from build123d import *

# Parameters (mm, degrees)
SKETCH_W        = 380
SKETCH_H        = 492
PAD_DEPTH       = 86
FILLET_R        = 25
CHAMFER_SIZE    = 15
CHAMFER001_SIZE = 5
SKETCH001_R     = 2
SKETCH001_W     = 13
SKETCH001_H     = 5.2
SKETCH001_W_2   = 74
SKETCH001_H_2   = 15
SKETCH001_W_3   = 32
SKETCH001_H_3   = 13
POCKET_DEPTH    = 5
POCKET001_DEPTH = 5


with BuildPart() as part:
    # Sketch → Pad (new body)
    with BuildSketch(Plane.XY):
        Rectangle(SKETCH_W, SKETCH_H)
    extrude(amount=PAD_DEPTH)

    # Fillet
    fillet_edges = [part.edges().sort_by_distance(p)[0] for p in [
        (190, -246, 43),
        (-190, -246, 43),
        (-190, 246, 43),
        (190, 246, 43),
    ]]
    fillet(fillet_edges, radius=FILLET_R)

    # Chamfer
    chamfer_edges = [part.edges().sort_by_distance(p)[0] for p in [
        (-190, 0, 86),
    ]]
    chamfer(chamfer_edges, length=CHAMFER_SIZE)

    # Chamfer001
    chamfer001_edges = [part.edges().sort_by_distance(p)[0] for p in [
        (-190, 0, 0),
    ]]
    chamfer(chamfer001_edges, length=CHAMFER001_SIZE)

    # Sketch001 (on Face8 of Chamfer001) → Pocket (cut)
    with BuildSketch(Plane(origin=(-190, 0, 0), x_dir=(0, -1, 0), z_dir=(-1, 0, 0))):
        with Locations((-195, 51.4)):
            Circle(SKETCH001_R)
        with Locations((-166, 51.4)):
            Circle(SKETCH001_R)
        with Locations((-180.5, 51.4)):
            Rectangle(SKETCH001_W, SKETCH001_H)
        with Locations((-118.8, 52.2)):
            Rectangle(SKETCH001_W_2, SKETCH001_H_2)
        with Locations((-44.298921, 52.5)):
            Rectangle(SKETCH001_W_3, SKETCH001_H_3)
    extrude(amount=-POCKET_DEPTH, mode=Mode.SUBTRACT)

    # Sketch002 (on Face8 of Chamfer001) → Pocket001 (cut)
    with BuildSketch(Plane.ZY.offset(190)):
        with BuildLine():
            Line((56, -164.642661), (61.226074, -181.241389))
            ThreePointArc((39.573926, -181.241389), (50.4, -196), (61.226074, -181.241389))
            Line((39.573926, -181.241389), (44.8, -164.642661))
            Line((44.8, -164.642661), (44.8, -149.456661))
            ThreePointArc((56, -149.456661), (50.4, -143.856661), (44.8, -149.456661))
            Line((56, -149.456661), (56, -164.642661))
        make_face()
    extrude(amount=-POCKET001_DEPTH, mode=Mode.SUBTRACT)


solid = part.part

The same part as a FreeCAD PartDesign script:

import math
import FreeCAD as App
import Part
import Sketcher

V = App.Vector
Q = App.Units.Quantity


def edges_at(feature, points):
    """Names of the edges that pass closest to the given points."""
    edges = feature.Shape.Edges
    near = lambda p: min(range(len(edges)), key=lambda i: edges[i].distToShape(Part.Vertex(*p))[0])
    return sorted({f"Edge{near(p) + 1}" for p in points})

doc = App.newDocument("Part")
body = doc.addObject("PartDesign::Body", "Body")

# Sketch on XY plane
sketch1 = body.newObject("Sketcher::SketchObject", "Sketch")
sketch1.AttachmentSupport = (doc.getObject("XY_Plane"), [""])
sketch1.MapMode = "FlatFace"
sketch1.addGeometry([
    Part.LineSegment(V(-190, 246, 0), V(-190, -246, 0)),
    Part.LineSegment(V(-190, -246, 0), V(190, -246, 0)),
    Part.LineSegment(V(190, -246, 0), V(190, 246, 0)),
    Part.LineSegment(V(190, 246, 0), V(-190, 246, 0)),
], False)
sketch1.addConstraint([
    Sketcher.Constraint("Coincident", 0, 2, 1, 1),
    Sketcher.Constraint("Coincident", 1, 2, 2, 1),
    Sketcher.Constraint("Coincident", 2, 2, 3, 1),
    Sketcher.Constraint("Coincident", 3, 2, 0, 1),
    Sketcher.Constraint("Vertical", 0),
    Sketcher.Constraint("Horizontal", 1),
    Sketcher.Constraint("Vertical", 2),
    Sketcher.Constraint("Horizontal", 3),
    Sketcher.Constraint("Symmetric", 0, 2, 2, 2, -1, 1),
    Sketcher.Constraint("DistanceX", 1, 1, 1, 2, Q("380 mm")),
    Sketcher.Constraint("DistanceY", 0, 2, 0, 1, Q("492 mm")),
])
pad1 = body.newObject("PartDesign::Pad", "Pad")
pad1.Profile = sketch1
pad1.Length = 86
doc.recompute()

fillet = body.newObject("PartDesign::Fillet", "Fillet")
fillet.Base = (pad1, edges_at(pad1, [
    (190, -246, 43),
    (-190, -246, 43),
    (-190, 246, 43),
    (190, 246, 43),
]))
fillet.Radius = 25
doc.recompute()

chamfer = body.newObject("PartDesign::Chamfer", "Chamfer")
chamfer.Base = (fillet, edges_at(fillet, [(-190, 0, 86)]))
chamfer.Size = 15
doc.recompute()

chamfer2 = body.newObject("PartDesign::Chamfer", "Chamfer001")
chamfer2.Base = (chamfer, edges_at(chamfer, [(-190, 0, 0)]))
chamfer2.Size = 5

# Sketch on YZ plane
sketch2 = body.newObject("Sketcher::SketchObject", "Sketch001")
sketch2.AttachmentSupport = (doc.getObject("YZ_Plane"), [""])
sketch2.MapMode = "FlatFace"
sketch2.AttachmentOffset = App.Placement(V(0, 0, -190), App.Rotation())
sketch2.addGeometry([
    Part.Circle(V(195, 51.4, 0), V(0, 0, 1), 2),  # 0
    Part.Circle(V(166, 51.4, 0), V(0, 0, 1), 2),  # 1
    Part.LineSegment(V(187, 54, 0), V(187, 48.8, 0)),  # 2
    Part.LineSegment(V(187, 48.8, 0), V(174, 48.8, 0)),  # 3
    Part.LineSegment(V(174, 48.8, 0), V(174, 54, 0)),  # 4
    Part.LineSegment(V(174, 54, 0), V(187, 54, 0)),  # 5
    Part.LineSegment(V(155.8, 59.7, 0), V(155.8, 44.7, 0)),  # 6
    Part.LineSegment(V(155.8, 44.7, 0), V(81.8, 44.7, 0)),  # 7
    Part.LineSegment(V(81.8, 44.7, 0), V(81.8, 59.7, 0)),  # 8
    Part.LineSegment(V(81.8, 59.7, 0), V(155.8, 59.7, 0)),  # 9
    Part.LineSegment(V(60.3, 59, 0), V(60.3, 46, 0)),  # 10
    Part.LineSegment(V(60.3, 46, 0), V(28.3, 46, 0)),  # 11
    Part.LineSegment(V(28.3, 46, 0), V(28.3, 59, 0)),  # 12
    Part.LineSegment(V(28.3, 59, 0), V(60.3, 59, 0)),  # 13
], False)
sketch2.addConstraint([
    Sketcher.Constraint("Coincident", 2, 2, 3, 1),
    Sketcher.Constraint("Coincident", 3, 2, 4, 1),
    Sketcher.Constraint("Coincident", 4, 2, 5, 1),
    Sketcher.Constraint("Coincident", 5, 2, 2, 1),
    Sketcher.Constraint("Coincident", 6, 2, 7, 1),
    Sketcher.Constraint("Coincident", 7, 2, 8, 1),
    Sketcher.Constraint("Coincident", 8, 2, 9, 1),
    Sketcher.Constraint("Coincident", 9, 2, 6, 1),
    Sketcher.Constraint("Coincident", 10, 2, 11, 1),
    Sketcher.Constraint("Coincident", 11, 2, 12, 1),
    Sketcher.Constraint("Coincident", 12, 2, 13, 1),
    Sketcher.Constraint("Coincident", 13, 2, 10, 1),
    Sketcher.Constraint("Vertical", 2),
    Sketcher.Constraint("Horizontal", 3),
    Sketcher.Constraint("Vertical", 4),
    Sketcher.Constraint("Horizontal", 5),
    Sketcher.Constraint("Vertical", 6),
    Sketcher.Constraint("Horizontal", 7),
    Sketcher.Constraint("Vertical", 8),
    Sketcher.Constraint("Horizontal", 9),
    Sketcher.Constraint("Vertical", 10),
    Sketcher.Constraint("Horizontal", 11),
    Sketcher.Constraint("Vertical", 12),
    Sketcher.Constraint("Horizontal", 13),
    Sketcher.Constraint("Equal", 0, 1),
    Sketcher.Constraint("Horizontal", 0, 3, 1, 3),
    Sketcher.Constraint("Equal", 5, 10),
    Sketcher.Constraint("Diameter", 0, Q("4 mm")),
    Sketcher.Constraint("DistanceX", 3, 2, 3, 1, Q("13 mm")),
    Sketcher.Constraint("DistanceX", 7, 2, 7, 1, Q("74 mm")),
    Sketcher.Constraint("DistanceX", 11, 2, 11, 1, Q("32 mm")),
    Sketcher.Constraint("DistanceY", 6, 2, 6, 1, Q("15 mm")),
    Sketcher.Constraint("DistanceY", 2, 2, 2, 1, Q("5.2 mm")),
    Sketcher.Constraint("DistanceX", -1, 1, 0, 3, Q("195 mm")),
    Sketcher.Constraint("DistanceX", -1, 1, 1, 3, Q("166 mm")),
    Sketcher.Constraint("DistanceX", -1, 1, 2, 2, Q("187 mm")),
    Sketcher.Constraint("DistanceY", -1, 1, 4, 2, Q("54 mm")),
    Sketcher.Constraint("DistanceY", -1, 1, 10, 2, Q("46 mm")),
    Sketcher.Constraint("DistanceY", -1, 1, 0, 3, Q("51.4 mm")),
    Sketcher.Constraint("DistanceX", -1, 1, 6, 2, Q("155.8 mm")),
    Sketcher.Constraint("DistanceY", -1, 1, 6, 2, Q("44.7 mm")),
    Sketcher.Constraint("DistanceX", -1, 1, 10, 2, Q("60.298921 mm")),
])
pocket1 = body.newObject("PartDesign::Pocket", "Pocket")
pocket1.Profile = sketch2
pocket1.Length = 5
pocket1.Reversed = True

# Sketch on YZ plane
sketch3 = body.newObject("Sketcher::SketchObject", "Sketch002")
sketch3.AttachmentSupport = (doc.getObject("YZ_Plane"), [""])
sketch3.MapMode = "FlatFace"
sketch3.AttachmentOffset = App.Placement(V(0, 0, -190), App.Rotation())
sketch3.addGeometry([
    Part.LineSegment(V(-181, 61, 0), V(-165, 56, 0)),  # 0
    Part.LineSegment(V(-165, 56, 0), V(-149, 56, 0)),  # 1
    Part.ArcOfCircle(Part.Circle(V(-149, 50, 0), V(0, 0, 1), 6), math.radians(-90), math.radians(90)),  # 2
    Part.LineSegment(V(-149, 45, 0), V(-165, 45, 0)),  # 3
    Part.LineSegment(V(-165, 45, 0), V(-181, 40, 0)),  # 4
    Part.ArcOfCircle(Part.Circle(V(-185, 50, 0), V(0, 0, 1), 11), math.radians(73), math.radians(287)),  # 5
], False)
sketch3.addConstraint([
    Sketcher.Constraint("Coincident", 0, 2, 1, 1),
    Sketcher.Constraint("Tangent", 1, 2, 2, 2),
    Sketcher.Constraint("Tangent", 2, 1, 3, 1),
    Sketcher.Constraint("Coincident", 3, 2, 4, 1),
    Sketcher.Constraint("Coincident", 4, 2, 5, 2),
    Sketcher.Constraint("Coincident", 5, 1, 0, 1),
    Sketcher.Constraint("Horizontal", 1),
    Sketcher.Constraint("Horizontal", 3),
    Sketcher.Constraint("Horizontal", 2, 3, 5, 3),
    Sketcher.Constraint("Vertical", 0, 2, 3, 2),
    Sketcher.Constraint("Vertical", 4, 2, 5, 1),
    Sketcher.Constraint("Radius", 2, Q("5.6 mm")),
    Sketcher.Constraint("Radius", 5, Q("11.35 mm")),
    Sketcher.Constraint("DistanceY", -1, 1, 0, 2, Q("56 mm")),
    Sketcher.Constraint("DistanceX", 1, 1, 1, 2, Q("15.186 mm")),
    Sketcher.Constraint("DistanceX", 5, 3, -1, 1, Q("184.65 mm")),
    Sketcher.Constraint("Distance", 0, Q("17.402 mm")),
    Sketcher.Constraint("DistanceX", 2, 3, -1, 1, Q("149.456661 mm")),
])
pocket2 = body.newObject("PartDesign::Pocket", "Pocket001")
pocket2.Profile = sketch3
pocket2.Length = 5
pocket2.Reversed = True

doc.recompute()
